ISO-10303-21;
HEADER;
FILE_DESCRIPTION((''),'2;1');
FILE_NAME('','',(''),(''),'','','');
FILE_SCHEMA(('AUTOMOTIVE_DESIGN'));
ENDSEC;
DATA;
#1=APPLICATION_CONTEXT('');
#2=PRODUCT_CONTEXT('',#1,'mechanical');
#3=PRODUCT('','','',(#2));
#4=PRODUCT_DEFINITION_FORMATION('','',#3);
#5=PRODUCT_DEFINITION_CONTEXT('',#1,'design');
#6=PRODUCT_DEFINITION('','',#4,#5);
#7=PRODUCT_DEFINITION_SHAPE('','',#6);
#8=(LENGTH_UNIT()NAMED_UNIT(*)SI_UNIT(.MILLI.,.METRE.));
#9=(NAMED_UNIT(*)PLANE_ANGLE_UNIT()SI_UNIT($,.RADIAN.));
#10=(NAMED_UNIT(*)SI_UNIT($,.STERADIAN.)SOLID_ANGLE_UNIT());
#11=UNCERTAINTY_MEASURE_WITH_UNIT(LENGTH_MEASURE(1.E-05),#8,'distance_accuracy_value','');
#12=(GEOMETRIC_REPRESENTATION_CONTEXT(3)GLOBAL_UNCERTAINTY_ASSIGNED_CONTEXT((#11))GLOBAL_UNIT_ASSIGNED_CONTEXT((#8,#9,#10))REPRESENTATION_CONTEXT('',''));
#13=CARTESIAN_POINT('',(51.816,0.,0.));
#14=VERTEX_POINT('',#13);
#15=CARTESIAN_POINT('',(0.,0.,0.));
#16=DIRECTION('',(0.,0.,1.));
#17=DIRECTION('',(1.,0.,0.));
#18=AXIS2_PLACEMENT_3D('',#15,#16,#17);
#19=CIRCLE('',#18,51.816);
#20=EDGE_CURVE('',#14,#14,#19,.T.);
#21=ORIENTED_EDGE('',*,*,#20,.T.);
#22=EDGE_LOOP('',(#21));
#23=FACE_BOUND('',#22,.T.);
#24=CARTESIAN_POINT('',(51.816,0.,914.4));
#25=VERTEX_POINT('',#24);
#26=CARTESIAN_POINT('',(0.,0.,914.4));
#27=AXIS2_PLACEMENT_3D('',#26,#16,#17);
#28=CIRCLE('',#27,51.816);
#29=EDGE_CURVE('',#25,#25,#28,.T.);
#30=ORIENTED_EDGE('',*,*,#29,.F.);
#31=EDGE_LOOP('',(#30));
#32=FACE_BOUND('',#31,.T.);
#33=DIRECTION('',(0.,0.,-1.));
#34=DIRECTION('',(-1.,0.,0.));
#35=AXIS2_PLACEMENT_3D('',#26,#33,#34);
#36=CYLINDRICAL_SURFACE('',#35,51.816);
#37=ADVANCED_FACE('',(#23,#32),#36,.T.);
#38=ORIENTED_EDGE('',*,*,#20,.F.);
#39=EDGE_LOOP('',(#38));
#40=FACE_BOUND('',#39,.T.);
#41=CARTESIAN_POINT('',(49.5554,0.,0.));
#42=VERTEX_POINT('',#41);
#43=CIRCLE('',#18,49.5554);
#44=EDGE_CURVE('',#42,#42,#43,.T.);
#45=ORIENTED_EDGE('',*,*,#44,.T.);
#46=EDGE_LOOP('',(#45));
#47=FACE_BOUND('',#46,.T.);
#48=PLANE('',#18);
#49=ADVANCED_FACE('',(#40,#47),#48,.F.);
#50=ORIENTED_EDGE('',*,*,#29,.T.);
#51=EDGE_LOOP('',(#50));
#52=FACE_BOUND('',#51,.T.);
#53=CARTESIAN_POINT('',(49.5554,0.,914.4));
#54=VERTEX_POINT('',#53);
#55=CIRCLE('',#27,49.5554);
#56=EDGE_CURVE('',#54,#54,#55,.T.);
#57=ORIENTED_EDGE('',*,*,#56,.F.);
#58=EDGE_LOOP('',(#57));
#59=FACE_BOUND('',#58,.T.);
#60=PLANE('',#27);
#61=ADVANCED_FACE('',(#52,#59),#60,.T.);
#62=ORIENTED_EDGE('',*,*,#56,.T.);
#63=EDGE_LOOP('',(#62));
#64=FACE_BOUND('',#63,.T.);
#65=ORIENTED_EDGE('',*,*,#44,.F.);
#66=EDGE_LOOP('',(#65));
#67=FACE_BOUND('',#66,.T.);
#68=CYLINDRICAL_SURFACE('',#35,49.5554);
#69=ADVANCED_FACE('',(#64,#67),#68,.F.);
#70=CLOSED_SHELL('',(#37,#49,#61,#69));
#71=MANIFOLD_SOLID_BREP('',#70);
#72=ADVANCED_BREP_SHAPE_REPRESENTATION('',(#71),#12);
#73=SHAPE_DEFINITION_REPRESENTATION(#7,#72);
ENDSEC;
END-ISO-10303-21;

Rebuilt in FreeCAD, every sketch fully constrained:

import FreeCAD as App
import Part
import Sketcher
Q = App.Units.Quantity

doc = App.newDocument("Part")
body = doc.addObject("PartDesign::Body", "Body")

# Sketch on XY plane
sketch1 = doc.addObject("Sketcher::SketchObject", "Sketch")
body.addObject(sketch1)
sketch1.AttachmentSupport = (doc.XY_Plane, [""])
sketch1.MapMode = "FlatFace"
sketch1.addGeometry([
    Part.Circle(App.Vector(0, 0, 0), App.Vector(0, 0, 1), 52),
    Part.Circle(App.Vector(0, 0, 0), App.Vector(0, 0, 1), 50),
], False)
sketch1.addConstraint([
    Sketcher.Constraint("Coincident", 0, 3, -1, 1),
    Sketcher.Constraint("Coincident", 1, 3, -1, 1),
    Sketcher.Constraint("Diameter", 0, Q("4.08 in")),
    Sketcher.Constraint("Diameter", 1, Q("3.902 in")),
])
pad1 = doc.addObject("PartDesign::Pad", "Pad")
body.addObject(pad1)
pad1.Profile = sketch1
pad1.Length = Q("36 in")

doc.recompute()
